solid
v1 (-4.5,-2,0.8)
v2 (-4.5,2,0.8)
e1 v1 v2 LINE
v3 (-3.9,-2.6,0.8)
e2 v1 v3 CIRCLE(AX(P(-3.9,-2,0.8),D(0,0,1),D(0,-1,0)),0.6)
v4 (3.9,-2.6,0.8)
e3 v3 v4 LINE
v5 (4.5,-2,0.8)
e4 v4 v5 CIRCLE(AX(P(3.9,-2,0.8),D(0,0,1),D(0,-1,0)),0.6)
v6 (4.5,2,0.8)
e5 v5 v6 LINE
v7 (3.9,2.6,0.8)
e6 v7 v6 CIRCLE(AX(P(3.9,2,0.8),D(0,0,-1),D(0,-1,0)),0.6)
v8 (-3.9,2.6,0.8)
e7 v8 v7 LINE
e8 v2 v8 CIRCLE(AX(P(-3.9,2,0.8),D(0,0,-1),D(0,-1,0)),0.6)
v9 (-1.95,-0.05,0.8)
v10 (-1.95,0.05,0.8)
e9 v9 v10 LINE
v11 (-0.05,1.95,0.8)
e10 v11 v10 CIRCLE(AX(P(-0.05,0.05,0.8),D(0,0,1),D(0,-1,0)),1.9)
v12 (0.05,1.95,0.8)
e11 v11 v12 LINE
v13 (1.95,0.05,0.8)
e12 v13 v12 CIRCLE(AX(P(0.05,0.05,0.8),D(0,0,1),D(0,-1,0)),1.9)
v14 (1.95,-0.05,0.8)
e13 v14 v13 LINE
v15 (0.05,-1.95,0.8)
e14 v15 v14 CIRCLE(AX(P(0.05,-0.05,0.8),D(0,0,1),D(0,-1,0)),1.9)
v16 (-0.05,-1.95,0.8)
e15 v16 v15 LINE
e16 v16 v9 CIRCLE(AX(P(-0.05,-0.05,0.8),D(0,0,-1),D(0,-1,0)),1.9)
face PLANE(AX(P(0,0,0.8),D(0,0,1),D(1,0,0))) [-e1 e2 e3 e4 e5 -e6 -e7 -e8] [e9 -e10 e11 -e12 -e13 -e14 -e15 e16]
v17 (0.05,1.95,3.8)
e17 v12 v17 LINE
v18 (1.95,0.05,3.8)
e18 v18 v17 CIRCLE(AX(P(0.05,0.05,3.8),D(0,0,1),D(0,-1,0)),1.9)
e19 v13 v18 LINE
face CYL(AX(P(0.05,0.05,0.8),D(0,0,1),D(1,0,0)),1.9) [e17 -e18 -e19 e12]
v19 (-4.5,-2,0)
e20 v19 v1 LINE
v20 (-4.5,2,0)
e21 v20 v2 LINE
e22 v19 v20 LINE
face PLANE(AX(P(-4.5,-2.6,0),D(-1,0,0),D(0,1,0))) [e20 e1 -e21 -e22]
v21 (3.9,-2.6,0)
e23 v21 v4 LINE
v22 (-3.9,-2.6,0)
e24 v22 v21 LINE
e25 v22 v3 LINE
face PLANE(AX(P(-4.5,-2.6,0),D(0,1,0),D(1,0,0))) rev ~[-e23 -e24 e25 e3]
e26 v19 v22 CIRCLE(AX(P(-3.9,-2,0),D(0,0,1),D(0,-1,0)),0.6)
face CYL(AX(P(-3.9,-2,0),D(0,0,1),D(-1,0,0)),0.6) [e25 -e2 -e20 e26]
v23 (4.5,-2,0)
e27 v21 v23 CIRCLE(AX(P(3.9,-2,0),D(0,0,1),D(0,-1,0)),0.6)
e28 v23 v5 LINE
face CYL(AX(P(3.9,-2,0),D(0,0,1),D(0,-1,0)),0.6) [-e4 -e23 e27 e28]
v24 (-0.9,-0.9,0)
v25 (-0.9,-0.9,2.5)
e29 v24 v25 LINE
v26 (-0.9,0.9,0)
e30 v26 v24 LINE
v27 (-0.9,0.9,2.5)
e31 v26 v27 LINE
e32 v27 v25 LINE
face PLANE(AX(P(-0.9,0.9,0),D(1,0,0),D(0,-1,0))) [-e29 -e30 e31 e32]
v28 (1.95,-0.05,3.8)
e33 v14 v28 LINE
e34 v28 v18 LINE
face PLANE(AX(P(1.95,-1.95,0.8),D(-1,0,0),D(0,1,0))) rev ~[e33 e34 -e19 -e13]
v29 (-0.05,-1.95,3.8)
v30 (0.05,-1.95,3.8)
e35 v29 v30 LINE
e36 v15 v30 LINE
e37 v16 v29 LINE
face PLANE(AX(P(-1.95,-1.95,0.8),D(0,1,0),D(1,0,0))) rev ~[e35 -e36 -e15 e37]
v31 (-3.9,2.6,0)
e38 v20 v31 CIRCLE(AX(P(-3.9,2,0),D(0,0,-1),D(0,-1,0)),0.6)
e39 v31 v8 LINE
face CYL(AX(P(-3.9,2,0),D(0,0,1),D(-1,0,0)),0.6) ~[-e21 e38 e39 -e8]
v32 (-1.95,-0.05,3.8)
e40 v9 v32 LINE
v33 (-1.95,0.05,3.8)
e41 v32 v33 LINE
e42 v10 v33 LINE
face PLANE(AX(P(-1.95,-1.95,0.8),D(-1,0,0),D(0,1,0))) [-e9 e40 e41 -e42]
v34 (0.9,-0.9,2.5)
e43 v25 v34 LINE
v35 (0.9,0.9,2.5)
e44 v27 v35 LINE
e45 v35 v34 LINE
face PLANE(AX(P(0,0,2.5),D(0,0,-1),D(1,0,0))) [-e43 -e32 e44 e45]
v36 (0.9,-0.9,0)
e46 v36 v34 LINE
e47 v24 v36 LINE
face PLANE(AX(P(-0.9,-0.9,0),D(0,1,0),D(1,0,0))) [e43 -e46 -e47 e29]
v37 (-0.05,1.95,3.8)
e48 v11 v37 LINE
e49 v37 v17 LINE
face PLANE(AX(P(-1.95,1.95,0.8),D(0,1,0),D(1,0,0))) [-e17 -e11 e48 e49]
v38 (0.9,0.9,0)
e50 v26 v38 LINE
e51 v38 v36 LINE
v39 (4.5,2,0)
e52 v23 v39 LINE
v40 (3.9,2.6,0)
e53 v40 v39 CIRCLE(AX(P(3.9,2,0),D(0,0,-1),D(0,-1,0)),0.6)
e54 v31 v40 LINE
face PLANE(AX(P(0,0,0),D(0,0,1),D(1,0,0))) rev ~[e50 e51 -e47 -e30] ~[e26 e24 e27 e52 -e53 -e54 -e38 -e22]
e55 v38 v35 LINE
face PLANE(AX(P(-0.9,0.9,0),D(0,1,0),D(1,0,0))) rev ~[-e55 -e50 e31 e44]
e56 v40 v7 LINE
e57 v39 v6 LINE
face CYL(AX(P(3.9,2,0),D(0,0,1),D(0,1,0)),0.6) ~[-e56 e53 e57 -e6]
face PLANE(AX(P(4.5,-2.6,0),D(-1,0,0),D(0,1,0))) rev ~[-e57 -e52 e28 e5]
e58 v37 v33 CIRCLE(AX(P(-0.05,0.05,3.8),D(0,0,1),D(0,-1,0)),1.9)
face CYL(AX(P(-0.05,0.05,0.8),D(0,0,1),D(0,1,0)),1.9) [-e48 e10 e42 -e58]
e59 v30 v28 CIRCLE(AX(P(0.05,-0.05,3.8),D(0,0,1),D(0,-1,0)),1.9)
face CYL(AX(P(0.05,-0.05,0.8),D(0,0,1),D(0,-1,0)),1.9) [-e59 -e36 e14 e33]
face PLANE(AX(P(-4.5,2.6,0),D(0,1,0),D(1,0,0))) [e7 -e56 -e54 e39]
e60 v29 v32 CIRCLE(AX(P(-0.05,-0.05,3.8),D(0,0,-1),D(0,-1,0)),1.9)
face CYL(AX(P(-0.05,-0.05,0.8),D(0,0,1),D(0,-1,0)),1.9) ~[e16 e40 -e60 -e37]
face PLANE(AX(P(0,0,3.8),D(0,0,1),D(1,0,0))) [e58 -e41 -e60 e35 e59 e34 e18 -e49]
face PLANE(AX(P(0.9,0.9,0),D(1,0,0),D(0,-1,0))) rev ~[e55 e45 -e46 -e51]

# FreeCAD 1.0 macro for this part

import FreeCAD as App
import Part
import Sketcher

V = App.Vector


def edges_at(feature, points):
    """Names of the edges that pass closest to the given points."""
    edges = feature.Shape.Edges
    near = lambda p: min(range(len(edges)), key=lambda i: edges[i].distToShape(Part.Vertex(*p))[0])
    return sorted({f"Edge{near(p) + 1}" for p in points})

doc = App.newDocument("Part")
body = doc.addObject("PartDesign::Body", "Body")

# Sketch on XY plane
sketch1 = body.newObject("Sketcher::SketchObject", "Sketch")
sketch1.AttachmentSupport = (doc.getObject("XY_Plane"), [""])
sketch1.MapMode = "FlatFace"
sketch1.addGeometry([
    Part.LineSegment(V(-4, 3, 0), V(-4, -3, 0)),
    Part.LineSegment(V(-4, -3, 0), V(4, -3, 0)),
    Part.LineSegment(V(4, -3, 0), V(4, 3, 0)),
    Part.LineSegment(V(4, 3, 0), V(-4, 3, 0)),
], False)
sketch1.addConstraint([
    Sketcher.Constraint("Coincident", 0, 2, 1, 1),
    Sketcher.Constraint("Coincident", 1, 2, 2, 1),
    Sketcher.Constraint("Coincident", 2, 2, 3, 1),
    Sketcher.Constraint("Coincident", 3, 2, 0, 1),
    Sketcher.Constraint("Vertical", 0),
    Sketcher.Constraint("Horizontal", 1),
    Sketcher.Constraint("Vertical", 2),
    Sketcher.Constraint("Horizontal", 3),
    Sketcher.Constraint("Symmetric", 0, 2, 2, 2, -1, 1),
    Sketcher.Constraint("DistanceX", 1, 1, 1, 2, 9.0),
    Sketcher.Constraint("DistanceY", 0, 2, 0, 1, 5.2),
])
pad1 = body.newObject("PartDesign::Pad", "Pad")
pad1.Profile = sketch1
pad1.Length = 0.8

# Sketch on XY plane
sketch2 = body.newObject("Sketcher::SketchObject", "Sketch001")
sketch2.AttachmentSupport = (doc.getObject("XY_Plane"), [""])
sketch2.MapMode = "FlatFace"
sketch2.AttachmentOffset = App.Placement(V(0, 0, 0.8), App.Rotation())
sketch2.addGeometry([
    Part.LineSegment(V(-1.9, 1.9, 0), V(-1.9, -1.9, 0)),
    Part.LineSegment(V(-1.9, -1.9, 0), V(1.9, -1.9, 0)),
    Part.LineSegment(V(1.9, -1.9, 0), V(1.9, 1.9, 0)),
    Part.LineSegment(V(1.9, 1.9, 0), V(-1.9, 1.9, 0)),
], False)
sketch2.addConstraint([
    Sketcher.Constraint("Coincident", 0, 2, 1, 1),
    Sketcher.Constraint("Coincident", 1, 2, 2, 1),
    Sketcher.Constraint("Coincident", 2, 2, 3, 1),
    Sketcher.Constraint("Coincident", 3, 2, 0, 1),
    Sketcher.Constraint("Vertical", 0),
    Sketcher.Constraint("Horizontal", 1),
    Sketcher.Constraint("Vertical", 2),
    Sketcher.Constraint("Horizontal", 3),
    Sketcher.Constraint("Symmetric", 0, 2, 2, 2, -1, 1),
    Sketcher.Constraint("Equal", 3, 0),
    Sketcher.Constraint("DistanceX", 1, 1, 1, 2, 3.9),
])
pad2 = body.newObject("PartDesign::Pad", "Pad001")
pad2.Profile = sketch2
pad2.Length = 3
doc.recompute()

fillet = body.newObject("PartDesign::Fillet", "Fillet")
fillet.Base = (pad2, edges_at(pad2, [
    (-1.95, -1.95, 2.3),
    (-1.95, 1.95, 2.3),
    (1.95, -1.95, 2.3),
    (1.95, 1.95, 2.3),
]))
fillet.Radius = 1.9
doc.recompute()

fillet2 = body.newObject("PartDesign::Fillet", "Fillet001")
fillet2.Base = (fillet, edges_at(fillet, [
    (-4.5, -2.6, 0.4),
    (-4.5, 2.6, 0.4),
    (4.5, -2.6, 0.4),
    (4.5, 2.6, 0.4),
]))
fillet2.Radius = 0.6

# Sketch on XY plane
sketch3 = body.newObject("Sketcher::SketchObject", "Sketch002")
sketch3.AttachmentSupport = (doc.getObject("XY_Plane"), [""])
sketch3.MapMode = "FlatFace"
sketch3.addGeometry([
    Part.LineSegment(V(-0.9, -0.9, 0), V(-0.9, 0.9, 0)),
    Part.LineSegment(V(-0.9, 0.9, 0), V(0.9, 0.9, 0)),
    Part.LineSegment(V(0.9, 0.9, 0), V(0.9, -0.9, 0)),
    Part.LineSegment(V(0.9, -0.9, 0), V(-0.9, -0.9, 0)),
], False)
sketch3.addConstraint([
    Sketcher.Constraint("Coincident", 0, 2, 1, 1),
    Sketcher.Constraint("Coincident", 1, 2, 2, 1),
    Sketcher.Constraint("Coincident", 2, 2, 3, 1),
    Sketcher.Constraint("Coincident", 3, 2, 0, 1),
    Sketcher.Constraint("Vertical", 0),
    Sketcher.Constraint("Horizontal", 1),
    Sketcher.Constraint("Vertical", 2),
    Sketcher.Constraint("Horizontal", 3),
    Sketcher.Constraint("Symmetric", 0, 2, 2, 2, -1, 1),
    Sketcher.Constraint("Equal", 3, 0),
    Sketcher.Constraint("DistanceX", 1, 1, 1, 2, 1.8),
])
pocket1 = body.newObject("PartDesign::Pocket", "Pocket")
pocket1.Profile = sketch3
pocket1.Length = 2.5
pocket1.Reversed = True

doc.recompute()
